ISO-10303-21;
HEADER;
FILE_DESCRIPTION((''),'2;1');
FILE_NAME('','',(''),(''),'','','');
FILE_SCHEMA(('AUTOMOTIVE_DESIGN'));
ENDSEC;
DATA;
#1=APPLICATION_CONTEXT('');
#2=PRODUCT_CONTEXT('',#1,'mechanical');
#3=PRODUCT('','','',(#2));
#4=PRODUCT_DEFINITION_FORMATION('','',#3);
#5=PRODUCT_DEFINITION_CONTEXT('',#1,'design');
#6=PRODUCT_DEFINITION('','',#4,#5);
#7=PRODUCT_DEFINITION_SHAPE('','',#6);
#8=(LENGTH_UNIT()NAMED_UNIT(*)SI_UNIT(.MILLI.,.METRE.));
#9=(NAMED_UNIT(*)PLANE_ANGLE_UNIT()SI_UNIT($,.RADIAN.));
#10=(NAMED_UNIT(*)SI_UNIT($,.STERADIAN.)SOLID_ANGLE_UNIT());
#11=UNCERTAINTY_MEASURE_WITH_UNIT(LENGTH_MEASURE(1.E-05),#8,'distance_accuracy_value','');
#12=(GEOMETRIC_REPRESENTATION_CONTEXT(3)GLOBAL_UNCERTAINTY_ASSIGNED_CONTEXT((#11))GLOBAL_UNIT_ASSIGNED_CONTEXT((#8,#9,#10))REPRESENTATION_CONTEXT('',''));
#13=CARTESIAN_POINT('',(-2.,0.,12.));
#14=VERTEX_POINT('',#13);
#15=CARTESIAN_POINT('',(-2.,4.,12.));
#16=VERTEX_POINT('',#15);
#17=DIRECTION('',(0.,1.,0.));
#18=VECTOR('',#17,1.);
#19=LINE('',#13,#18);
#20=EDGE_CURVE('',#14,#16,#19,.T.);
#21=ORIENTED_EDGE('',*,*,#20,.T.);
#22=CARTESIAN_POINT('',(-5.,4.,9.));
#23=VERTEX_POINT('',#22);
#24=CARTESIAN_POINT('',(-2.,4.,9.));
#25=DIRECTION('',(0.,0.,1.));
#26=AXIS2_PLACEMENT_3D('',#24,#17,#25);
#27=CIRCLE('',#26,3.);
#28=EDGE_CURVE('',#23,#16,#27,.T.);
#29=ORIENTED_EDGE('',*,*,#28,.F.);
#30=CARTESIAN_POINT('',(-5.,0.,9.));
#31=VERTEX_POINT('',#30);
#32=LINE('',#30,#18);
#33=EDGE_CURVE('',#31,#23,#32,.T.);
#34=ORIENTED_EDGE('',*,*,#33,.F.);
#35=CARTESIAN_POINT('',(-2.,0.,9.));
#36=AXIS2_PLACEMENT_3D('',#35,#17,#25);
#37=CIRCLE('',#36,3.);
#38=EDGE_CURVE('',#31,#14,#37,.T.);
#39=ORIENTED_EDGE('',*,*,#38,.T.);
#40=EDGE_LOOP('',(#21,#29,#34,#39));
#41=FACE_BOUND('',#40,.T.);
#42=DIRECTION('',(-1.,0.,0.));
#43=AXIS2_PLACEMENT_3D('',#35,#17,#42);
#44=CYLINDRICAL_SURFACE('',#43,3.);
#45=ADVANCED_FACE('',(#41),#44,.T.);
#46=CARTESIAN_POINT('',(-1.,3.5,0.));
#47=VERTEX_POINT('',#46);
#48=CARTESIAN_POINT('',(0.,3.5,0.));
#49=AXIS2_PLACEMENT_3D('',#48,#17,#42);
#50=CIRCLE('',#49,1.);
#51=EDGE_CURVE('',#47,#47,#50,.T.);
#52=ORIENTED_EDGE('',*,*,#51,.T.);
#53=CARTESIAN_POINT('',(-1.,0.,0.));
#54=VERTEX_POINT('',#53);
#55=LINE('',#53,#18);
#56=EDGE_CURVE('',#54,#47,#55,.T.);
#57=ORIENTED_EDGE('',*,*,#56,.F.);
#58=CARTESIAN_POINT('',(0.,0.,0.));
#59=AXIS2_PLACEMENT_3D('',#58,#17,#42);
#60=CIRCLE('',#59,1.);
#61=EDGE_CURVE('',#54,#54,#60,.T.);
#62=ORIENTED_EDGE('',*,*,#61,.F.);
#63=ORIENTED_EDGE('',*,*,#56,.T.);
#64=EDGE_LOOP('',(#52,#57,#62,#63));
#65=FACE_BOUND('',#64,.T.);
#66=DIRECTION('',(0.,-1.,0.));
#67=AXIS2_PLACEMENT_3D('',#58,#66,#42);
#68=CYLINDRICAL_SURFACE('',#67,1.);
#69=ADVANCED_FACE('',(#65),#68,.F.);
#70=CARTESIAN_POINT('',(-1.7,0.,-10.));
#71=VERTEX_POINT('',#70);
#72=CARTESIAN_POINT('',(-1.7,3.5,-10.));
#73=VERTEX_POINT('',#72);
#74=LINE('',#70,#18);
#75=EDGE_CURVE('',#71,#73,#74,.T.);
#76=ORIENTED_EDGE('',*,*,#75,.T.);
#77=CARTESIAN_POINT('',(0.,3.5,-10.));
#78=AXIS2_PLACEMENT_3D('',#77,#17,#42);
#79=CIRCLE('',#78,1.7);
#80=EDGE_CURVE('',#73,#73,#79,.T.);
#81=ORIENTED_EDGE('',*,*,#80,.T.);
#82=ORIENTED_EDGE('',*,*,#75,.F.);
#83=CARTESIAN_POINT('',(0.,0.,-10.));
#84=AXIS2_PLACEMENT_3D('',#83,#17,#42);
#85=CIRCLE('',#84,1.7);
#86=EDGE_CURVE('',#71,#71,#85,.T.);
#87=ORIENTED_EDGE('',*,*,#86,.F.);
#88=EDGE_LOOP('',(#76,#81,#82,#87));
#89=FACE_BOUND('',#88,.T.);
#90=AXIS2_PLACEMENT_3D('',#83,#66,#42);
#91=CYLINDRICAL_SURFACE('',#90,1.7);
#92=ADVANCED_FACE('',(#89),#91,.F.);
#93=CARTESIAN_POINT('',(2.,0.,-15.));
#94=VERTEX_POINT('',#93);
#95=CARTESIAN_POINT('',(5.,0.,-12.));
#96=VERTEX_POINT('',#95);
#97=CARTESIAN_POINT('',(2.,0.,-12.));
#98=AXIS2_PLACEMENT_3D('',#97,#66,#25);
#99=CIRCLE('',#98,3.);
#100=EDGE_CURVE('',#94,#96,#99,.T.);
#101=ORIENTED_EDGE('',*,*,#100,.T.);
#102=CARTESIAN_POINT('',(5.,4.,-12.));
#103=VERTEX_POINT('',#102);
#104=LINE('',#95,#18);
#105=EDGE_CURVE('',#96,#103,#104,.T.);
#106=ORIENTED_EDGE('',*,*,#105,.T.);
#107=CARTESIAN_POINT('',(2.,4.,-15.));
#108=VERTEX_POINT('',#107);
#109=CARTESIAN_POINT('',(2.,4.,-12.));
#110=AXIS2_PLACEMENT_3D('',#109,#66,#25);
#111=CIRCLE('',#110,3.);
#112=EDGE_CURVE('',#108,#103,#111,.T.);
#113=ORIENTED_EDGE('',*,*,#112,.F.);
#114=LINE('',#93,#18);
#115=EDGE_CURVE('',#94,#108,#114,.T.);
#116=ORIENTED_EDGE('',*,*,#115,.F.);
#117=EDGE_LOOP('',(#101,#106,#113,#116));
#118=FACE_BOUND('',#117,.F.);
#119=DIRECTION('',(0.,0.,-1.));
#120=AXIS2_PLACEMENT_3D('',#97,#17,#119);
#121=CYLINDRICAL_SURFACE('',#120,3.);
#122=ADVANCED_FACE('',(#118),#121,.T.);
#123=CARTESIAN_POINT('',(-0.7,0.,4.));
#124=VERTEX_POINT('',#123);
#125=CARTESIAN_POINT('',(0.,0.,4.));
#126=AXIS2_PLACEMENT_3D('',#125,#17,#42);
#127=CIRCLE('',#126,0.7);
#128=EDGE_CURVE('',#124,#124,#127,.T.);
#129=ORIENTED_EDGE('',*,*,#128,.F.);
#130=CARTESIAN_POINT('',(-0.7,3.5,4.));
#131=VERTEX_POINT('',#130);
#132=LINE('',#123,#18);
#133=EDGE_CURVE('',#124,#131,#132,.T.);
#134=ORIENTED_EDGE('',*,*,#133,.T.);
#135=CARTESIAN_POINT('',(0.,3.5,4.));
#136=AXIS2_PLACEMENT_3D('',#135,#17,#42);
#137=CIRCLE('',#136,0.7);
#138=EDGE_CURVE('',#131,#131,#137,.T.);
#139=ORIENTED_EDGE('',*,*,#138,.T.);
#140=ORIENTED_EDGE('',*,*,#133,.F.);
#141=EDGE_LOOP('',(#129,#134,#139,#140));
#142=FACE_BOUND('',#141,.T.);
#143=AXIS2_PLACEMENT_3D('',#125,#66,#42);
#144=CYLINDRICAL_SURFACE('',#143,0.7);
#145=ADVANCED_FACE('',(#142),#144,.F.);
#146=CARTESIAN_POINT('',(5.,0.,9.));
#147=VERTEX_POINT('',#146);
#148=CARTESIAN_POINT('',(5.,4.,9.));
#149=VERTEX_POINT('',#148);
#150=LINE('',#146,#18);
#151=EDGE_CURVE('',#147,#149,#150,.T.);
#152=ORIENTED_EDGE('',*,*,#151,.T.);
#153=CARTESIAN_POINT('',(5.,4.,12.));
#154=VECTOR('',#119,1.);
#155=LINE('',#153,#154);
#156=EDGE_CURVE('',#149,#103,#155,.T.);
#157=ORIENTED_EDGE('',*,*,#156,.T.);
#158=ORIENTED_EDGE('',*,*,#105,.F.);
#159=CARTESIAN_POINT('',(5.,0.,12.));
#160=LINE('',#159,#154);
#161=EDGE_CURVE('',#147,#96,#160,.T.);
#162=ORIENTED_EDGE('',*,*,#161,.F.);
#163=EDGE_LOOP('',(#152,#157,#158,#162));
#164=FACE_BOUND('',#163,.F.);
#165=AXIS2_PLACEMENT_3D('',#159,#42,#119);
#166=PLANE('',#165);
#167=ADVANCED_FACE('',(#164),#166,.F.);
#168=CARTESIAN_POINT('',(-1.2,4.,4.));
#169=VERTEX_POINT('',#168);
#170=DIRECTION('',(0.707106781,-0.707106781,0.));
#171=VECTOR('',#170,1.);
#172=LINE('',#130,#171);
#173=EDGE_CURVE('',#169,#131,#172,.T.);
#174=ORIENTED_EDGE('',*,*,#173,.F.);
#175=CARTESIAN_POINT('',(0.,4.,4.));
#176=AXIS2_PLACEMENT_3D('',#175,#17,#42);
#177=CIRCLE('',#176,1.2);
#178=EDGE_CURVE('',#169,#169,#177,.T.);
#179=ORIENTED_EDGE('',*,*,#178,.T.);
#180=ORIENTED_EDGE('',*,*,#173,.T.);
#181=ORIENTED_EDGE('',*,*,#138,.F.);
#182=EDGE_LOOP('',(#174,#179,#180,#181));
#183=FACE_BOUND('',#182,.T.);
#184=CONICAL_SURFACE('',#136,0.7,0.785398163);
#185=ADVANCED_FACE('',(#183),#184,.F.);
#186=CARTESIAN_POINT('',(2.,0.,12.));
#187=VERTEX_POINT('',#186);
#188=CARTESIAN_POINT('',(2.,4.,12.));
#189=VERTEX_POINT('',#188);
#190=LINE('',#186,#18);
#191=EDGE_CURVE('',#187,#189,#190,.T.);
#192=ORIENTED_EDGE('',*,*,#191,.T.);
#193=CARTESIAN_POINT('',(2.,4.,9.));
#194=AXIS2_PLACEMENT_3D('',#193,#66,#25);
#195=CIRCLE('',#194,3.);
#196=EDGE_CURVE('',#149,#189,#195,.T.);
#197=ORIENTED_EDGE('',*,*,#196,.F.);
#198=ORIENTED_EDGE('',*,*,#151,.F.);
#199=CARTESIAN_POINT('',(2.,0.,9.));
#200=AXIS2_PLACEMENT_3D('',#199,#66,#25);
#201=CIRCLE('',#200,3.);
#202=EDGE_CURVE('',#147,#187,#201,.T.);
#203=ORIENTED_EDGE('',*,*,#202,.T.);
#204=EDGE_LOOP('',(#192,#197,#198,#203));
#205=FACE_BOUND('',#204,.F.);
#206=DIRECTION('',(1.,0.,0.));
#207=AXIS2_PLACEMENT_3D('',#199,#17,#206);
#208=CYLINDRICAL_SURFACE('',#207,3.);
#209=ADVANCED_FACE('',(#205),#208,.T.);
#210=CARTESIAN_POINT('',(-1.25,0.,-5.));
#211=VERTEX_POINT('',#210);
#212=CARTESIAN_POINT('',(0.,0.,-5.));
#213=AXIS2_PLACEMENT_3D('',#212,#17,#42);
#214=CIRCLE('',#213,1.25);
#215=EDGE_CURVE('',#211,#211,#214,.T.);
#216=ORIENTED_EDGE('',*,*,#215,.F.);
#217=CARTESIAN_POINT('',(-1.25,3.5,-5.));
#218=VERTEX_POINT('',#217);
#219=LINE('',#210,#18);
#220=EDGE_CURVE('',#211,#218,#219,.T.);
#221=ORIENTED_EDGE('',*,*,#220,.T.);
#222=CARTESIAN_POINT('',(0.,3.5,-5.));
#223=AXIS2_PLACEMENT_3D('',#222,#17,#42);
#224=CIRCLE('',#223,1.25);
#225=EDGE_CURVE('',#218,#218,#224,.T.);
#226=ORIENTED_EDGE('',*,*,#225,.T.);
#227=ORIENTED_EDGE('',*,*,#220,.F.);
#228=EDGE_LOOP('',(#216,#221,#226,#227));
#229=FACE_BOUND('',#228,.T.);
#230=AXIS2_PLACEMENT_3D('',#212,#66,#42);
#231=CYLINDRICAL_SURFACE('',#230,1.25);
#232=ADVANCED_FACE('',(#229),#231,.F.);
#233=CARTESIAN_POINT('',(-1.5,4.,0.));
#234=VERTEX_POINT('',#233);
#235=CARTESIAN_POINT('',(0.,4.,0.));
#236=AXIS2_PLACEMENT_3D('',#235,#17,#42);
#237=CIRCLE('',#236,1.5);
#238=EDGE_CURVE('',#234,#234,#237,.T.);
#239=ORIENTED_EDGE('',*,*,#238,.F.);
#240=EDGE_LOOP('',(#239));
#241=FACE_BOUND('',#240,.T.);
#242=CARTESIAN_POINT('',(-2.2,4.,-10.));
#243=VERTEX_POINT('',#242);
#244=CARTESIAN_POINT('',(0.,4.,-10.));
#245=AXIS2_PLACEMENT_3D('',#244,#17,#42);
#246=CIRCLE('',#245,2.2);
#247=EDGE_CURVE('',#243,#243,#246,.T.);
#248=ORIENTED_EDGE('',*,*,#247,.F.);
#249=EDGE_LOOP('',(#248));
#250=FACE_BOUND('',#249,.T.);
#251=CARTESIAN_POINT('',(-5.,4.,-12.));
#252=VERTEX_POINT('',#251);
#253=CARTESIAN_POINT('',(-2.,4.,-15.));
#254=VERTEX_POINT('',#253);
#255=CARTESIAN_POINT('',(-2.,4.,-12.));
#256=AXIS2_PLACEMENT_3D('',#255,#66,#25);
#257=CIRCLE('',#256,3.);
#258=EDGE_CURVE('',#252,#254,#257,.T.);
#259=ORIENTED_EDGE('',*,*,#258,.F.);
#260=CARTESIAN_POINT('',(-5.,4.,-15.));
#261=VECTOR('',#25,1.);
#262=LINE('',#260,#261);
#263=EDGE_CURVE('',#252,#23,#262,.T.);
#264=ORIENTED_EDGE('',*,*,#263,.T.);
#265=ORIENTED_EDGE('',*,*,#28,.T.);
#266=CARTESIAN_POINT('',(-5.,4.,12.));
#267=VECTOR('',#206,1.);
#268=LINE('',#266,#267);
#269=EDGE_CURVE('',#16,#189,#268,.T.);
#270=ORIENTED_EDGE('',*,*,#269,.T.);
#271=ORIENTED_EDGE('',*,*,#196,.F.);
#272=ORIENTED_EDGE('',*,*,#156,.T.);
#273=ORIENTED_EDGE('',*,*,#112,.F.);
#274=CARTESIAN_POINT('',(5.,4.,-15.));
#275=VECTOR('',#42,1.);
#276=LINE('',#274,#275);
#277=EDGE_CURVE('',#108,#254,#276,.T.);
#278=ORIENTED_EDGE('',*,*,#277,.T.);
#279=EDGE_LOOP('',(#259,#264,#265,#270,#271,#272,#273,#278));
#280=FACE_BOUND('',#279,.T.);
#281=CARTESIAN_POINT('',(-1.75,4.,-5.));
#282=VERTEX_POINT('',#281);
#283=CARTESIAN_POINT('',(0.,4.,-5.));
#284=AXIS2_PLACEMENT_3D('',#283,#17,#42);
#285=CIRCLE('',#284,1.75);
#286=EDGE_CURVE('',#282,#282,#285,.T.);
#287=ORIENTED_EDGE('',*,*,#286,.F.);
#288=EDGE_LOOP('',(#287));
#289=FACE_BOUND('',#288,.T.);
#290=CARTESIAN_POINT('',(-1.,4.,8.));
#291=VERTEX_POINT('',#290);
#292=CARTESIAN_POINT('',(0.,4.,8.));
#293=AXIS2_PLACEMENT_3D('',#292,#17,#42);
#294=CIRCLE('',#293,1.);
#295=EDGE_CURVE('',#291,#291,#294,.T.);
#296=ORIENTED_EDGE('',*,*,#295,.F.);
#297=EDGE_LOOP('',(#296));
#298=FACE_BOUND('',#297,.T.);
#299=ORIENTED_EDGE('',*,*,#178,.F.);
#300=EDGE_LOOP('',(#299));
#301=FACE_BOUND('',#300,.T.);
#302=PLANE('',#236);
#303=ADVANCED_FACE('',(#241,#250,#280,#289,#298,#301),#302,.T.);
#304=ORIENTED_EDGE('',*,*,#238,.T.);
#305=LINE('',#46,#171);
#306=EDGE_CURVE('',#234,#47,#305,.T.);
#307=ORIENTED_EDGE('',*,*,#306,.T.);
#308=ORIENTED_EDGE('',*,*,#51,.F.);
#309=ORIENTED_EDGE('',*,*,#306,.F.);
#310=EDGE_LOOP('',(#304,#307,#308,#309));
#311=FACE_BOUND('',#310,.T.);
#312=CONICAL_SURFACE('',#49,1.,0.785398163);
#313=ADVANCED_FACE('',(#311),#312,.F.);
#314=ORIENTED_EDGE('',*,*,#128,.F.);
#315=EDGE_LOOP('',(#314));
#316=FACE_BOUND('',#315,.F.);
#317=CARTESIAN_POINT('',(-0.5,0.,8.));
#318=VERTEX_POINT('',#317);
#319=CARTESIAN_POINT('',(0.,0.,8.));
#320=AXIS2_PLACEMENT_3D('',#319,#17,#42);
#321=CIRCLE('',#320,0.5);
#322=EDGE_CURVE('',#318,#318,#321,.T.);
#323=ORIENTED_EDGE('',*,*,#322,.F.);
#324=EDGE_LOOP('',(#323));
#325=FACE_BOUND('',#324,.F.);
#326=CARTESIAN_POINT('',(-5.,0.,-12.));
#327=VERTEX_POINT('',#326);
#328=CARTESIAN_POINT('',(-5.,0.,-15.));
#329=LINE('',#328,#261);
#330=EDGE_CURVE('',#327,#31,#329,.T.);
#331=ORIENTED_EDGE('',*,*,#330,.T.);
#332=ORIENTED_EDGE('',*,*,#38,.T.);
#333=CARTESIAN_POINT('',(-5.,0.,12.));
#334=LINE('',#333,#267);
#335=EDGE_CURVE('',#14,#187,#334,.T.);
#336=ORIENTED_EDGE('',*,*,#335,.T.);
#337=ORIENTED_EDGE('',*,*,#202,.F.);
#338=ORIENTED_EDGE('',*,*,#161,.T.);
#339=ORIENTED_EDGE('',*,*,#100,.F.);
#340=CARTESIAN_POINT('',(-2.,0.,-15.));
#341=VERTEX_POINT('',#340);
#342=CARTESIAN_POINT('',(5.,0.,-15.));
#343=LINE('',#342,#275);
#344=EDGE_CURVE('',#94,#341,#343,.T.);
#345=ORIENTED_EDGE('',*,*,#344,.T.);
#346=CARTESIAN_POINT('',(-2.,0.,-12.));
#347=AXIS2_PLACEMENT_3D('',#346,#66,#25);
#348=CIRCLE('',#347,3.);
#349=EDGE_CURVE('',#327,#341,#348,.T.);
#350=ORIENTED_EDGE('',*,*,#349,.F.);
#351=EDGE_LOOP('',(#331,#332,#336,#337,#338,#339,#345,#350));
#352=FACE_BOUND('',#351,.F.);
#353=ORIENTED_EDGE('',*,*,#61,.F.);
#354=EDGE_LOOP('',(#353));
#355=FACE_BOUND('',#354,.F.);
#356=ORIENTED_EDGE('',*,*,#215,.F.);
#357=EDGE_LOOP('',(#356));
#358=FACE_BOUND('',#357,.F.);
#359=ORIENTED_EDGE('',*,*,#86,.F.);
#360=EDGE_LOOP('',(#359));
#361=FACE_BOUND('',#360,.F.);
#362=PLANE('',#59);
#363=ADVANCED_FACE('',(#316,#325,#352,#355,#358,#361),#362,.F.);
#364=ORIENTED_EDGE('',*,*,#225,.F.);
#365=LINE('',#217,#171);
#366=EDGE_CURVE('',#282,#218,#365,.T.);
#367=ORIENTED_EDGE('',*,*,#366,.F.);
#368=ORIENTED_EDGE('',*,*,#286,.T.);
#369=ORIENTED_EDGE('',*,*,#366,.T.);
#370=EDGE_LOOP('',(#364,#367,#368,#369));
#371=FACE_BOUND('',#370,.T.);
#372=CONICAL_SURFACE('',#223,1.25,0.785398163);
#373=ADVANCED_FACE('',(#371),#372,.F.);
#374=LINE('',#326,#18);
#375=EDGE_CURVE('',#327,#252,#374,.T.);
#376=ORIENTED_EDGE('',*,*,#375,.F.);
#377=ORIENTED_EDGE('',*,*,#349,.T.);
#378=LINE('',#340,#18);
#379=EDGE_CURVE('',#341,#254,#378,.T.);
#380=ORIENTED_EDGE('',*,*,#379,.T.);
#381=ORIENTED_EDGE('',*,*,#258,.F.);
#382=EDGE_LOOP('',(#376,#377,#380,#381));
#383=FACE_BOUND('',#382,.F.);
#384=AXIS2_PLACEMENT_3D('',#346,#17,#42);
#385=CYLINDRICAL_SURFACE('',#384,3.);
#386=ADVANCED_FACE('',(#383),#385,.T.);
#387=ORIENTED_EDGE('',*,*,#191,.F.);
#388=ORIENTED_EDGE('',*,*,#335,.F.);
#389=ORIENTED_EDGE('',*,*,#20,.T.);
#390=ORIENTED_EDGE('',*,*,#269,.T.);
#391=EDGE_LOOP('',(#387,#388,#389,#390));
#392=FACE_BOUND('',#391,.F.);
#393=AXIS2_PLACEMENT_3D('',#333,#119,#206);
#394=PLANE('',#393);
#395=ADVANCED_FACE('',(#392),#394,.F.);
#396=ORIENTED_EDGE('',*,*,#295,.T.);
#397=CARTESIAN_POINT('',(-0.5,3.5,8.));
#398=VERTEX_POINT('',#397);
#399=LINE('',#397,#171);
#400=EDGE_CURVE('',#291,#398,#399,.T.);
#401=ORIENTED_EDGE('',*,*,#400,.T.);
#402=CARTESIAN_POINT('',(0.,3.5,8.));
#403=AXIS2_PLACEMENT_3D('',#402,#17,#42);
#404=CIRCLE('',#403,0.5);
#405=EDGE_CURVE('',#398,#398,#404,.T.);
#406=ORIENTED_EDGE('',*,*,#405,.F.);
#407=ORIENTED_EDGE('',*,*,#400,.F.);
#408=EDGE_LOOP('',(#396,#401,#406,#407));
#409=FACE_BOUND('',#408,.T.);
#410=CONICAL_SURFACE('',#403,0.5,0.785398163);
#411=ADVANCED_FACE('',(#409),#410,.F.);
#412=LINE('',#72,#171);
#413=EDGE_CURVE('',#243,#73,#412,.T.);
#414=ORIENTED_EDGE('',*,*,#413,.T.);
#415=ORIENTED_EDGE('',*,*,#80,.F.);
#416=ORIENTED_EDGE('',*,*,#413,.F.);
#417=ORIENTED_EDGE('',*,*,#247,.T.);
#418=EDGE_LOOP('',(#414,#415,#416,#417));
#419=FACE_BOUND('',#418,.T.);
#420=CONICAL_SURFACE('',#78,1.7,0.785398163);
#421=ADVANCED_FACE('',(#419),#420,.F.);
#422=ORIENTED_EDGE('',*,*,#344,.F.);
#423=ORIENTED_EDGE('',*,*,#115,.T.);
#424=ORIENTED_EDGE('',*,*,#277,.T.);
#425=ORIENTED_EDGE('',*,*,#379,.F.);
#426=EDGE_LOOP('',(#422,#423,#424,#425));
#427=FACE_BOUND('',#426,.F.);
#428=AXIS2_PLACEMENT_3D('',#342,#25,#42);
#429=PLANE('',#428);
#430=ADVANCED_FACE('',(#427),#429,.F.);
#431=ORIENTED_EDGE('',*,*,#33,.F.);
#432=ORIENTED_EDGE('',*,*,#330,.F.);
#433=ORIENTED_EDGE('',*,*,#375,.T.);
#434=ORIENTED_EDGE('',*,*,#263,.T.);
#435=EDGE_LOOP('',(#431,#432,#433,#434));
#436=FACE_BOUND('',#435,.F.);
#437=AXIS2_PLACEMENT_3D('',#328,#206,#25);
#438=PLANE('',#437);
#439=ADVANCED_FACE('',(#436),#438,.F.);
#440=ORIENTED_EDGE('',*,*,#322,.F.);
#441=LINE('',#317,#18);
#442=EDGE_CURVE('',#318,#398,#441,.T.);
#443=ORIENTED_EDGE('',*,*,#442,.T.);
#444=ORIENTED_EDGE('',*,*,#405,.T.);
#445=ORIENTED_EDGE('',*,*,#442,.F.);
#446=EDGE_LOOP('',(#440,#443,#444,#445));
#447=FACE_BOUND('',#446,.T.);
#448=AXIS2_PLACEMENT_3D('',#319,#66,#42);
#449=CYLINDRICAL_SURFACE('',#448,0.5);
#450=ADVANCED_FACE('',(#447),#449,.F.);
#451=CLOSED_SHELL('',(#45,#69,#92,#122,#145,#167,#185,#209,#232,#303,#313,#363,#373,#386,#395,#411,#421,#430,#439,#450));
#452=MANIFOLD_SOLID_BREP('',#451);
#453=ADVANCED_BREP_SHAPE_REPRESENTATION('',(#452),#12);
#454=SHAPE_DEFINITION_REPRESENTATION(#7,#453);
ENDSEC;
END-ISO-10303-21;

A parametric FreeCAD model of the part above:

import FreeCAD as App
import Part
import Sketcher
Q = App.Units.Quantity


def edges_at(feature, points):
    """Names of the edges that pass closest to the given points."""
    edges = feature.Shape.Edges
    near = lambda p: min(range(len(edges)), key=lambda i: edges[i].distToShape(Part.Vertex(*p))[0])
    return sorted({f"Edge{near(p) + 1}" for p in points})

doc = App.newDocument("Part")
body = doc.addObject("PartDesign::Body", "Body")

# Sketch on XZ plane
sketch1 = doc.addObject("Sketcher::SketchObject", "Sketch")
body.addObject(sketch1)
sketch1.AttachmentSupport = (doc.XZ_Plane, [""])
sketch1.MapMode = "FlatFace"
sketch1.addGeometry(Part.LineSegment(App.Vector(-5, -15, 0), App.Vector(-5, 12, 0)), False)
sketch1.addGeometry(Part.LineSegment(App.Vector(-5, 12, 0), App.Vector(5, 12, 0)), False)
sketch1.addGeometry(Part.LineSegment(App.Vector(5, 12, 0), App.Vector(5, -15, 0)), False)
sketch1.addGeometry(Part.LineSegment(App.Vector(5, -15, 0), App.Vector(-5, -15, 0)), False)
sketch1.addGeometry(Part.Circle(App.Vector(0, -10, 0), App.Vector(0, 0, 1), 1.7), False)
sketch1.addGeometry(Part.Circle(App.Vector(0, -5, 0), App.Vector(0, 0, 1), 1.25), False)
sketch1.addGeometry(Part.Circle(App.Vector(0, 0, 0), App.Vector(0, 0, 1), 1), False)
sketch1.addGeometry(Part.Circle(App.Vector(0, 4, 0), App.Vector(0, 0, 1), 0.7), False)
sketch1.addGeometry(Part.Circle(App.Vector(0, 8, 0), App.Vector(0, 0, 1), 0.5), False)
sketch1.addConstraint(Sketcher.Constraint("Coincident", 0, 2, 1, 1))
sketch1.addConstraint(Sketcher.Constraint("Coincident", 1, 2, 2, 1))
sketch1.addConstraint(Sketcher.Constraint("Coincident", 2, 2, 3, 1))
sketch1.addConstraint(Sketcher.Constraint("Coincident", 3, 2, 0, 1))
sketch1.addConstraint(Sketcher.Constraint("Vertical", 0))
sketch1.addConstraint(Sketcher.Constraint("Horizontal", 1))
sketch1.addConstraint(Sketcher.Constraint("Vertical", 2))
sketch1.addConstraint(Sketcher.Constraint("Horizontal", 3))
sketch1.addConstraint(Sketcher.Constraint("Coincident", 6, 3, -1, 1))
sketch1.addConstraint(Sketcher.Constraint("PointOnObject", 4, 3, -2))
sketch1.addConstraint(Sketcher.Constraint("PointOnObject", 5, 3, -2))
sketch1.addConstraint(Sketcher.Constraint("PointOnObject", 7, 3, -2))
sketch1.addConstraint(Sketcher.Constraint("PointOnObject", 8, 3, -2))
sketch1.addConstraint(Sketcher.Constraint("Diameter", 6, Q("2 mm")))
sketch1.addConstraint(Sketcher.Constraint("Diameter", 8, Q("1 mm")))
sketch1.addConstraint(Sketcher.Constraint("Diameter", 4, Q("3.4 mm")))
sketch1.addConstraint(Sketcher.Constraint("Diameter", 5, Q("2.5 mm")))
sketch1.addConstraint(Sketcher.Constraint("Diameter", 7, Q("1.4 mm")))
sketch1.addConstraint(Sketcher.Constraint("DistanceY", 5, 3, -1, 1, Q("5 mm")))
sketch1.addConstraint(Sketcher.Constraint("DistanceY", -1, 1, 7, 3, Q("4 mm")))
sketch1.addConstraint(Sketcher.Constraint("DistanceX", 0, 2, -1, 1, Q("5 mm")))
sketch1.addConstraint(Sketcher.Constraint("DistanceX", -1, 1, 1, 2, Q("5 mm")))
sketch1.addConstraint(Sketcher.Constraint("DistanceY", 4, 3, 5, 3, Q("5 mm")))
sketch1.addConstraint(Sketcher.Constraint("DistanceY", 7, 3, 8, 3, Q("4 mm")))
sketch1.addConstraint(Sketcher.Constraint("DistanceY", 8, 3, 0, 2, Q("4 mm")))
sketch1.addConstraint(Sketcher.Constraint("DistanceY", 2, 2, 4, 3, Q("5 mm")))
pad1 = doc.addObject("PartDesign::Pad", "Pad")
body.addObject(pad1)
pad1.Profile = sketch1
pad1.Length = 4
pad1.Reversed = True
doc.recompute()

fillet = doc.addObject("PartDesign::Fillet", "Fillet")
body.addObject(fillet)
fillet.Base = (pad1, edges_at(pad1, [
    (5, 2, 12),
    (-5, 2, 12),
    (-5, 2, -15),
    (5, 2, -15),
]))
fillet.Radius = 3
doc.recompute()

chamfer = doc.addObject("PartDesign::Chamfer", "Chamfer")
body.addObject(chamfer)
chamfer.Base = (fillet, edges_at(fillet, [
    (1.7, 4, -10),
    (1.25, 4, -5),
    (1, 4, 0),
    (0.7, 4, 4),
    (0.5, 4, 8),
]))
chamfer.Size = 0.5

doc.recompute()
